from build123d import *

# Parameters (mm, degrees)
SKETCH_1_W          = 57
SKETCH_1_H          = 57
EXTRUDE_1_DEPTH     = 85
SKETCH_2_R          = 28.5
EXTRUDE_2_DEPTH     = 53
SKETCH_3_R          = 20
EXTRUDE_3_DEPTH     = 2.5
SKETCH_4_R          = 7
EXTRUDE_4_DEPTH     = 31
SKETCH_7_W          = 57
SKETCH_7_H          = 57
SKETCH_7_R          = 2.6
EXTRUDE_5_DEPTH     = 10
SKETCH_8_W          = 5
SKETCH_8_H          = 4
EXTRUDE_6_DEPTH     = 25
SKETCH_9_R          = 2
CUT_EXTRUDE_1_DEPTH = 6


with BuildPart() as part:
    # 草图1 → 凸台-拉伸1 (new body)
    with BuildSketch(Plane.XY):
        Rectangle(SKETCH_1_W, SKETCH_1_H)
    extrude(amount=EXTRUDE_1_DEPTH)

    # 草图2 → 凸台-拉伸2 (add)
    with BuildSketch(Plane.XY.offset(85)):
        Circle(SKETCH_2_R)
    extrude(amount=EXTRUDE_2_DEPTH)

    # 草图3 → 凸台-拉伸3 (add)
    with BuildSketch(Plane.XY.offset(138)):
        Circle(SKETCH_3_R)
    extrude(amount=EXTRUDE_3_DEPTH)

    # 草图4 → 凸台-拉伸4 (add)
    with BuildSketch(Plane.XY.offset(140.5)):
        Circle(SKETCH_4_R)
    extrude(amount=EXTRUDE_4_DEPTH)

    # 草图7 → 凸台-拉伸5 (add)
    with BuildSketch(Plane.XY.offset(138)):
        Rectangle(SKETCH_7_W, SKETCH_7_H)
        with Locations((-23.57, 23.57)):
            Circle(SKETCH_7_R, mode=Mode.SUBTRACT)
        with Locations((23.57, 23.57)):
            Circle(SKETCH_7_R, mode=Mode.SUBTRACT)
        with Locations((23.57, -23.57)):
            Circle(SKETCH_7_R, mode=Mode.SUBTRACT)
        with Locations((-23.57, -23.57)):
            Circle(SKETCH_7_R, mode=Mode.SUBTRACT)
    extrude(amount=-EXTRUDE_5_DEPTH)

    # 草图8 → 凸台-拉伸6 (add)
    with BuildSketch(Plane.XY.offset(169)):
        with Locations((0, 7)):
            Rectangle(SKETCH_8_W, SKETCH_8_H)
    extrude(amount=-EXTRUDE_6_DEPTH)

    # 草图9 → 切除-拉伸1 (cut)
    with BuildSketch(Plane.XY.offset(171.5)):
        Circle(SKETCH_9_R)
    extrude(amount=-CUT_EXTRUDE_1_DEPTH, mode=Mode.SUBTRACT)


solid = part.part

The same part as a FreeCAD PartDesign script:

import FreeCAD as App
import Part
import Sketcher
Q = App.Units.Quantity

doc = App.newDocument("Part")
body = doc.addObject("PartDesign::Body", "Body")

sketch1 = body.newObject("Sketcher::SketchObject", "Sketch")
sketch1.AttachmentSupport = (doc.getObject("XY_Plane"), [""])
sketch1.MapMode = "FlatFace"
sketch1.addGeometry([
    Part.LineSegment(App.Vector(-28.5, 28.5, 0), App.Vector(-28.5, -28.5, 0)),
    Part.LineSegment(App.Vector(-28.5, -28.5, 0), App.Vector(28.5, -28.5, 0)),
    Part.LineSegment(App.Vector(28.5, -28.5, 0), App.Vector(28.5, 28.5, 0)),
    Part.LineSegment(App.Vector(28.5, 28.5, 0), App.Vector(-28.5, 28.5, 0)),
], False)
sketch1.addConstraint([
    Sketcher.Constraint("Coincident", 0, 2, 1, 1),
    Sketcher.Constraint("Coincident", 1, 2, 2, 1),
    Sketcher.Constraint("Coincident", 2, 2, 3, 1),
    Sketcher.Constraint("Coincident", 3, 2, 0, 1),
    Sketcher.Constraint("Vertical", 0),
    Sketcher.Constraint("Horizontal", 1),
    Sketcher.Constraint("Vertical", 2),
    Sketcher.Constraint("Horizontal", 3),
    Sketcher.Constraint("Symmetric", 0, 2, 2, 2, -1, 1),
    Sketcher.Constraint("Equal", 3, 0),
    Sketcher.Constraint("DistanceX", 1, 1, 1, 2, Q("57 mm")),
])
pad1 = body.newObject("PartDesign::Pad", "Pad")
pad1.Profile = sketch1
pad1.Length = 85

sketch2 = body.newObject("Sketcher::SketchObject", "Sketch001")
sketch2.AttachmentSupport = (doc.getObject("XY_Plane"), [""])
sketch2.MapMode = "FlatFace"
sketch2.AttachmentOffset = App.Placement(App.Vector(0, 0, 85), App.Rotation())
sketch2.addGeometry(Part.Circle(App.Vector(0, 0, 0), App.Vector(0, 0, 1), 28.5), False)
sketch2.addConstraint([
    Sketcher.Constraint("Coincident", 0, 3, -1, 1),
    Sketcher.Constraint("Diameter", 0, Q("57 mm")),
])
pad2 = body.newObject("PartDesign::Pad", "Pad001")
pad2.Profile = sketch2
pad2.Length = 53

sketch3 = body.newObject("Sketcher::SketchObject", "Sketch002")
sketch3.AttachmentSupport = (doc.getObject("XY_Plane"), [""])
sketch3.MapMode = "FlatFace"
sketch3.AttachmentOffset = App.Placement(App.Vector(0, 0, 138), App.Rotation())
sketch3.addGeometry(Part.Circle(App.Vector(0, 0, 0), App.Vector(0, 0, 1), 20), False)
sketch3.addConstraint([
    Sketcher.Constraint("Coincident", 0, 3, -1, 1),
    Sketcher.Constraint("Diameter", 0, Q("40 mm")),
])
pad3 = body.newObject("PartDesign::Pad", "Pad002")
pad3.Profile = sketch3
pad3.Length = 2.5

sketch4 = body.newObject("Sketcher::SketchObject", "Sketch003")
sketch4.AttachmentSupport = (doc.getObject("XY_Plane"), [""])
sketch4.MapMode = "FlatFace"
sketch4.AttachmentOffset = App.Placement(App.Vector(0, 0, 140.5), App.Rotation())
sketch4.addGeometry(Part.Circle(App.Vector(0, 0, 0), App.Vector(0, 0, 1), 7), False)
sketch4.addConstraint([
    Sketcher.Constraint("Coincident", 0, 3, -1, 1),
    Sketcher.Constraint("Diameter", 0, Q("14 mm")),
])
pad4 = body.newObject("PartDesign::Pad", "Pad003")
pad4.Profile = sketch4
pad4.Length = 31

sketch5 = body.newObject("Sketcher::SketchObject", "Sketch004")
sketch5.AttachmentSupport = (doc.getObject("XY_Plane"), [""])
sketch5.MapMode = "FlatFace"
sketch5.AttachmentOffset = App.Placement(App.Vector(0, 0, 138), App.Rotation())
sketch5.addGeometry([
    Part.LineSegment(App.Vector(-28.5, 28.5, 0), App.Vector(-28.5, -28.5, 0)),
    Part.LineSegment(App.Vector(-28.5, -28.5, 0), App.Vector(28.5, -28.5, 0)),
    Part.LineSegment(App.Vector(28.5, -28.5, 0), App.Vector(28.5, 28.5, 0)),
    Part.LineSegment(App.Vector(28.5, 28.5, 0), App.Vector(-28.5, 28.5, 0)),
    Part.Circle(App.Vector(-23.57, -23.57, 0), App.Vector(0, 0, 1), 2.6),
    Part.Circle(App.Vector(23.57, -23.57, 0), App.Vector(0, 0, 1), 2.6),
    Part.Circle(App.Vector(-23.57, 23.57, 0), App.Vector(0, 0, 1), 2.6),
    Part.Circle(App.Vector(23.57, 23.57, 0), App.Vector(0, 0, 1), 2.6),
], False)
sketch5.addConstraint([
    Sketcher.Constraint("Coincident", 0, 2, 1, 1),
    Sketcher.Constraint("Coincident", 1, 2, 2, 1),
    Sketcher.Constraint("Coincident", 2, 2, 3, 1),
    Sketcher.Constraint("Coincident", 3, 2, 0, 1),
    Sketcher.Constraint("Vertical", 0),
    Sketcher.Constraint("Horizontal", 1),
    Sketcher.Constraint("Vertical", 2),
    Sketcher.Constraint("Horizontal", 3),
    Sketcher.Constraint("Equal", 4, 5),
    Sketcher.Constraint("Equal", 5, 6),
    Sketcher.Constraint("Equal", 6, 7),
    Sketcher.Constraint("Symmetric", 5, 3, 6, 3, -1, 1),
    Sketcher.Constraint("Symmetric", 4, 3, 7, 3, -1, 1),
    Sketcher.Constraint("Symmetric", 0, 2, 2, 2, -1, 1),
    Sketcher.Constraint("Symmetric", 4, 3, 5, 3, -2),
    Sketcher.Constraint("Equal", 3, 0),
    Sketcher.Constraint("Diameter", 4, Q("5.2 mm")),
    Sketcher.Constraint("DistanceX", 1, 1, 1, 2, Q("57 mm")),
    Sketcher.Constraint("DistanceX", 4, 3, -1, 1, Q("23.57 mm")),
    Sketcher.Constraint("DistanceY", 4, 3, -1, 1, Q("23.57 mm")),
])
pad5 = body.newObject("PartDesign::Pad", "Pad004")
pad5.Profile = sketch5
pad5.Length = 10
pad5.Reversed = True

sketch6 = body.newObject("Sketcher::SketchObject", "Sketch005")
sketch6.AttachmentSupport = (doc.getObject("XY_Plane"), [""])
sketch6.MapMode = "FlatFace"
sketch6.AttachmentOffset = App.Placement(App.Vector(0, 0, 169), App.Rotation())
sketch6.addGeometry([
    Part.LineSegment(App.Vector(-2.5, 9, 0), App.Vector(-2.5, 5, 0)),
    Part.LineSegment(App.Vector(-2.5, 5, 0), App.Vector(2.5, 5, 0)),
    Part.LineSegment(App.Vector(2.5, 5, 0), App.Vector(2.5, 9, 0)),
    Part.LineSegment(App.Vector(2.5, 9, 0), App.Vector(-2.5, 9, 0)),
], False)
sketch6.addConstraint([
    Sketcher.Constraint("Coincident", 0, 2, 1, 1),
    Sketcher.Constraint("Coincident", 1, 2, 2, 1),
    Sketcher.Constraint("Coincident", 2, 2, 3, 1),
    Sketcher.Constraint("Coincident", 3, 2, 0, 1),
    Sketcher.Constraint("Vertical", 0),
    Sketcher.Constraint("Horizontal", 1),
    Sketcher.Constraint("Vertical", 2),
    Sketcher.Constraint("Horizontal", 3),
    Sketcher.Constraint("DistanceX", 1, 1, 1, 2, Q("5 mm")),
    Sketcher.Constraint("DistanceY", 0, 2, 0, 1, Q("4 mm")),
    Sketcher.Constraint("DistanceY", -1, 1, 0, 2, Q("5 mm")),
    Sketcher.Constraint("DistanceX", 0, 2, -1, 1, Q("2.5 mm")),
])
pad6 = body.newObject("PartDesign::Pad", "Pad005")
pad6.Profile = sketch6
pad6.Length = 25
pad6.Reversed = True

sketch7 = body.newObject("Sketcher::SketchObject", "Sketch006")
sketch7.AttachmentSupport = (doc.getObject("XY_Plane"), [""])
sketch7.MapMode = "FlatFace"
sketch7.AttachmentOffset = App.Placement(App.Vector(0, 0, 171.5), App.Rotation())
sketch7.addGeometry(Part.Circle(App.Vector(0, 0, 0), App.Vector(0, 0, 1), 2), False)
sketch7.addConstraint([
    Sketcher.Constraint("Coincident", 0, 3, -1, 1),
    Sketcher.Constraint("Diameter", 0, Q("4 mm")),
])
pocket1 = body.newObject("PartDesign::Pocket", "Pocket")
pocket1.Profile = sketch7
pocket1.Length = 6

doc.recompute()
